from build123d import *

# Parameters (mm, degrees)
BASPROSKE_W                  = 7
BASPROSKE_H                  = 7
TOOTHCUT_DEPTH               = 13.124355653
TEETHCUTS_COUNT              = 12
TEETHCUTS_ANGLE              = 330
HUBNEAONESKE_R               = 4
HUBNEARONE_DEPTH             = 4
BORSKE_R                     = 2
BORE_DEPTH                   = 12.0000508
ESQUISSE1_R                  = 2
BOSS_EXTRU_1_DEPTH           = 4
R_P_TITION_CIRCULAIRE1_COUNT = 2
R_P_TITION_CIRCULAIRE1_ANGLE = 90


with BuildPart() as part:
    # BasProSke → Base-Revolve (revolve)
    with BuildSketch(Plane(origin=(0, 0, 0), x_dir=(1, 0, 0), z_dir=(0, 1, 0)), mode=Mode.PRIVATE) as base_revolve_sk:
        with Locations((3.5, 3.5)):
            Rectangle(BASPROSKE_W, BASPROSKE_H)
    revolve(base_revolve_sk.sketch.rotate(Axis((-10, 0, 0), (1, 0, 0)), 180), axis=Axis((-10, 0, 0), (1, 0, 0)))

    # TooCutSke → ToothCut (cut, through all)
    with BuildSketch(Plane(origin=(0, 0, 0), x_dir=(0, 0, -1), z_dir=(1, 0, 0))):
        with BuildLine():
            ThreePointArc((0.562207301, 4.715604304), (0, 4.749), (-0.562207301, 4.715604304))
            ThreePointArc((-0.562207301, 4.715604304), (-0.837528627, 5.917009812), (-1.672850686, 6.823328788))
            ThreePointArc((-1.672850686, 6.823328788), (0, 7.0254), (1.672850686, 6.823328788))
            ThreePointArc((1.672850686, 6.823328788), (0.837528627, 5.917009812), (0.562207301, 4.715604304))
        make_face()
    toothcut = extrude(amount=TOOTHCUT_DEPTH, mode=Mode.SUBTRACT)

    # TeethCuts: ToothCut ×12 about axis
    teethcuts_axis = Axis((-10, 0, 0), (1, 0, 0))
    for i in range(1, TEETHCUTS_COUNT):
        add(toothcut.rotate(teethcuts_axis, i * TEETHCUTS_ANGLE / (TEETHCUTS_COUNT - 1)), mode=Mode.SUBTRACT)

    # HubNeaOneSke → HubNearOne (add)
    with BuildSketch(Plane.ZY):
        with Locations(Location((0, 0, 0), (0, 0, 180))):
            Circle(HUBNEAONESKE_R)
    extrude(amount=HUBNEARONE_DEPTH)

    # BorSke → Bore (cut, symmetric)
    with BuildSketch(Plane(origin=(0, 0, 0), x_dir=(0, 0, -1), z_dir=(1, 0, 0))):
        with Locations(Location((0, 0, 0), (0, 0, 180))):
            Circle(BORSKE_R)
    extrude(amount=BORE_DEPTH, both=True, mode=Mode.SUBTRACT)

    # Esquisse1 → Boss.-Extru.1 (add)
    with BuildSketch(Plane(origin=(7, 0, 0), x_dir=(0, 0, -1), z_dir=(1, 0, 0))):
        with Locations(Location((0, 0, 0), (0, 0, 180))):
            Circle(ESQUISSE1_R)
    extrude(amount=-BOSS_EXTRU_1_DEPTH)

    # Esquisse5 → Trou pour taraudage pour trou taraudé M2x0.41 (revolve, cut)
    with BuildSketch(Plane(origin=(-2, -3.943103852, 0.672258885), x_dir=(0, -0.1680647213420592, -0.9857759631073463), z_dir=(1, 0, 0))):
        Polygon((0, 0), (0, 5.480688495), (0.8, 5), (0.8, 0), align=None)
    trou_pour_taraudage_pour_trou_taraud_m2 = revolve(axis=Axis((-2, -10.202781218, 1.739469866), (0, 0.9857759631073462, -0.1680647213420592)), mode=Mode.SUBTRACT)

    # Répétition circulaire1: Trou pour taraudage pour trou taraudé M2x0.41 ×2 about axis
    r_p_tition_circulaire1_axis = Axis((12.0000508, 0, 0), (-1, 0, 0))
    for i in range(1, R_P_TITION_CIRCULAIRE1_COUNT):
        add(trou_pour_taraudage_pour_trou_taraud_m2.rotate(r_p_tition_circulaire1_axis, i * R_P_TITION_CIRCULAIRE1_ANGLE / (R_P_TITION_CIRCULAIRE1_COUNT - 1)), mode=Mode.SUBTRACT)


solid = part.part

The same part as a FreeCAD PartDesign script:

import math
import FreeCAD as App
import Part
import Sketcher
from FreeCAD import Vector
Q = App.Units.Quantity


def add_polygon(sketch, points):
    """Adds a closed chain of lines whose ends are joined by coincident constraints."""
    first, n = sketch.GeometryCount, len(points)
    for a, b in zip(points, points[1:] + points[:1]):
        sketch.addGeometry(Part.LineSegment(App.Vector(*a, 0), App.Vector(*b, 0)), False)
    for i in range(n):
        sketch.addConstraint(Sketcher.Constraint("Coincident", first + i, 2, first + (i + 1) % n, 1))

doc = App.newDocument("Part")
body = doc.addObject("PartDesign::Body", "Body")

# Sketch on XZ plane
sketch1 = doc.addObject("Sketcher::SketchObject", "Sketch")
body.addObject(sketch1)
sketch1.AttachmentSupport = (doc.XZ_Plane, [""])
sketch1.MapMode = "FlatFace"
add_polygon(sketch1, [(0, -7), (0, 0), (7, 0), (7, -7)])  # lines 0-3
sketch1.addConstraint(Sketcher.Constraint("Vertical", 0))
sketch1.addConstraint(Sketcher.Constraint("Horizontal", 1))
sketch1.addConstraint(Sketcher.Constraint("Vertical", 2))
sketch1.addConstraint(Sketcher.Constraint("Horizontal", 3))
sketch1.addConstraint(Sketcher.Constraint("Coincident", 0, 2, -1, 1))
sketch1.addConstraint(Sketcher.Constraint("Equal", 3, 0))
sketch1.addConstraint(Sketcher.Constraint("DistanceX", 1, 1, 1, 2, Q("7 mm")))
revolution = doc.addObject("PartDesign::Revolution", "Revolution")
body.addObject(revolution)
revolution.Profile = sketch1
revolution.ReferenceAxis = (sketch1, ["H_Axis"])
revolution.Angle = 360

# Sketch on YZ plane
sketch2 = doc.addObject("Sketcher::SketchObject", "Sketch001")
body.addObject(sketch2)
sketch2.AttachmentSupport = (doc.YZ_Plane, [""])
sketch2.MapMode = "FlatFace"
sketch2.addGeometry(Part.ArcOfCircle(Part.Circle(Vector(0, 0, 0), Vector(0, 0, 1), 4.7), math.radians(-6.8), math.radians(6.8)), False)
sketch2.addGeometry(Part.ArcOfCircle(Part.Circle(Vector(4.8, -3, 0), Vector(0, 0, 1), 2.4), math.radians(32), math.radians(92)), False)
sketch2.addGeometry(Part.ArcOfCircle(Part.Circle(Vector(0, 0, 0), Vector(0, 0, 1), 7), math.radians(-14), math.radians(14)), False)
sketch2.addGeometry(Part.ArcOfCircle(Part.Circle(Vector(4.8, 3, 0), Vector(0, 0, 1), 2.4), math.radians(-92), math.radians(-32)), False)
sketch2.addConstraint(Sketcher.Constraint("Coincident", 0, 1, 1, 2))
sketch2.addConstraint(Sketcher.Constraint("Coincident", 1, 1, 2, 1))
sketch2.addConstraint(Sketcher.Constraint("Coincident", 2, 2, 3, 2))
sketch2.addConstraint(Sketcher.Constraint("Coincident", 3, 1, 0, 2))
sketch2.addConstraint(Sketcher.Constraint("Coincident", 0, 3, -1, 1))
sketch2.addConstraint(Sketcher.Constraint("Coincident", 2, 3, -1, 1))
sketch2.addConstraint(Sketcher.Constraint("Equal", 1, 3))
sketch2.addConstraint(Sketcher.Constraint("Symmetric", 1, 3, 3, 3, -1))
sketch2.addConstraint(Sketcher.Constraint("Radius", 1, Q("2.4 mm")))
sketch2.addConstraint(Sketcher.Constraint("Radius", 0, Q("4.749 mm")))
sketch2.addConstraint(Sketcher.Constraint("Radius", 2, Q("7.0254 mm")))
sketch2.addConstraint(Sketcher.Constraint("DistanceY", 1, 1, 2, 2, Q("3.345701 mm")))
sketch2.addConstraint(Sketcher.Constraint("DistanceX", -1, 1, 1, 3, Q("4.798181 mm")))
pocket1 = doc.addObject("PartDesign::Pocket", "Pocket")
body.addObject(pocket1)
pocket1.Profile = sketch2
pocket1.Type = "ThroughAll"
pocket1.Reversed = True
doc.recompute()

polarpattern = doc.addObject("PartDesign::PolarPattern", "PolarPattern")
body.addObject(polarpattern)
polarpattern.Originals = [pocket1]
polarpattern.Axis = (doc.X_Axis, [""])
polarpattern.Angle = 360
polarpattern.Occurrences = 12
body.Tip = polarpattern

# Sketch on YZ plane
sketch3 = doc.addObject("Sketcher::SketchObject", "Sketch002")
body.addObject(sketch3)
sketch3.AttachmentSupport = (doc.YZ_Plane, [""])
sketch3.MapMode = "FlatFace"
sketch3.addGeometry(Part.Circle(Vector(0, 0, 0), Vector(0, 0, 1), 4), False)
sketch3.addConstraint(Sketcher.Constraint("Coincident", 0, 3, -1, 1))
sketch3.addConstraint(Sketcher.Constraint("Diameter", 0, Q("8 mm")))
pad1 = doc.addObject("PartDesign::Pad", "Pad")
body.addObject(pad1)
pad1.Profile = sketch3
pad1.Length = 4
pad1.Reversed = True

# Sketch on YZ plane
sketch4 = doc.addObject("Sketcher::SketchObject", "Sketch003")
body.addObject(sketch4)
sketch4.AttachmentSupport = (doc.YZ_Plane, [""])
sketch4.MapMode = "FlatFace"
sketch4.addGeometry(Part.Circle(Vector(0, 0, 0), Vector(0, 0, 1), 2), False)
sketch4.addConstraint(Sketcher.Constraint("Coincident", 0, 3, -1, 1))
sketch4.addConstraint(Sketcher.Constraint("Diameter", 0, Q("4 mm")))
pocket2 = doc.addObject("PartDesign::Pocket", "Pocket001")
body.addObject(pocket2)
pocket2.Profile = sketch4
pocket2.Length = 24.000102
pocket2.Midplane = True

# Sketch on YZ plane
sketch5 = doc.addObject("Sketcher::SketchObject", "Sketch004")
body.addObject(sketch5)
sketch5.AttachmentSupport = (doc.YZ_Plane, [""])
sketch5.MapMode = "FlatFace"
sketch5.AttachmentOffset = App.Placement(Vector(0, 0, 7), App.Rotation())
sketch5.addGeometry(Part.Circle(Vector(0, 0, 0), Vector(0, 0, 1), 2), False)
sketch5.addConstraint(Sketcher.Constraint("Coincident", 0, 3, -1, 1))
sketch5.addConstraint(Sketcher.Constraint("Diameter", 0, Q("4 mm")))
pad2 = doc.addObject("PartDesign::Pad", "Pad001")
body.addObject(pad2)
pad2.Profile = sketch5
pad2.Length = 4
pad2.Reversed = True

# Sketch on YZ plane
sketch6 = doc.addObject("Sketcher::SketchObject", "Sketch005")
body.addObject(sketch6)
sketch6.AttachmentSupport = (doc.YZ_Plane, [""])
sketch6.MapMode = "FlatFace"
sketch6.AttachmentOffset = App.Placement(Vector(0, 0, -2), App.Rotation())
add_polygon(sketch6, [(1.5, -0.2), (-3.9, 0.7), (-4.1, -0.1), (0.9, -1)])  # lines 0-3
sketch6.addGeometry(Part.LineSegment(Vector(-3.9, 0.7, 0), Vector(1.5, -0.2, 0)), True)  # axis
sketch6.addConstraint(Sketcher.Constraint("Coincident", 4, 1, 0, 2))
sketch6.addConstraint(Sketcher.Constraint("Coincident", 4, 2, 3, 2))
sketch6.addConstraint(Sketcher.Constraint("Perpendicular", 0, 1))
sketch6.addConstraint(Sketcher.Constraint("Perpendicular", 1, 2))
sketch6.addConstraint(Sketcher.Constraint("Distance", 2, Q("5 mm")))
sketch6.addConstraint(Sketcher.Constraint("Distance", 1, Q("0.8 mm")))
sketch6.addConstraint(Sketcher.Constraint("Distance", 0, Q("5.480688 mm")))
sketch6.addConstraint(Sketcher.Constraint("DistanceY", -1, 1, 0, 2, Q("0.672259 mm")))
sketch6.addConstraint(Sketcher.Constraint("DistanceY", 1, 2, -1, 1, Q("0.116362 mm")))
sketch6.addConstraint(Sketcher.Constraint("DistanceX", 0, 2, -1, 1, Q("3.943104 mm")))
groove = doc.addObject("PartDesign::Groove", "Groove")
body.addObject(groove)
groove.Profile = sketch6
groove.ReferenceAxis = (sketch6, ["Axis0"])
groove.Angle = 360
doc.recompute()

polarpattern2 = doc.addObject("PartDesign::PolarPattern", "PolarPattern001")
body.addObject(polarpattern2)
polarpattern2.Originals = [groove]
polarpattern2.Axis = (doc.X_Axis, [""])
polarpattern2.Angle = 90
polarpattern2.Occurrences = 2
polarpattern2.Reversed = True
body.Tip = polarpattern2

doc.recompute()
